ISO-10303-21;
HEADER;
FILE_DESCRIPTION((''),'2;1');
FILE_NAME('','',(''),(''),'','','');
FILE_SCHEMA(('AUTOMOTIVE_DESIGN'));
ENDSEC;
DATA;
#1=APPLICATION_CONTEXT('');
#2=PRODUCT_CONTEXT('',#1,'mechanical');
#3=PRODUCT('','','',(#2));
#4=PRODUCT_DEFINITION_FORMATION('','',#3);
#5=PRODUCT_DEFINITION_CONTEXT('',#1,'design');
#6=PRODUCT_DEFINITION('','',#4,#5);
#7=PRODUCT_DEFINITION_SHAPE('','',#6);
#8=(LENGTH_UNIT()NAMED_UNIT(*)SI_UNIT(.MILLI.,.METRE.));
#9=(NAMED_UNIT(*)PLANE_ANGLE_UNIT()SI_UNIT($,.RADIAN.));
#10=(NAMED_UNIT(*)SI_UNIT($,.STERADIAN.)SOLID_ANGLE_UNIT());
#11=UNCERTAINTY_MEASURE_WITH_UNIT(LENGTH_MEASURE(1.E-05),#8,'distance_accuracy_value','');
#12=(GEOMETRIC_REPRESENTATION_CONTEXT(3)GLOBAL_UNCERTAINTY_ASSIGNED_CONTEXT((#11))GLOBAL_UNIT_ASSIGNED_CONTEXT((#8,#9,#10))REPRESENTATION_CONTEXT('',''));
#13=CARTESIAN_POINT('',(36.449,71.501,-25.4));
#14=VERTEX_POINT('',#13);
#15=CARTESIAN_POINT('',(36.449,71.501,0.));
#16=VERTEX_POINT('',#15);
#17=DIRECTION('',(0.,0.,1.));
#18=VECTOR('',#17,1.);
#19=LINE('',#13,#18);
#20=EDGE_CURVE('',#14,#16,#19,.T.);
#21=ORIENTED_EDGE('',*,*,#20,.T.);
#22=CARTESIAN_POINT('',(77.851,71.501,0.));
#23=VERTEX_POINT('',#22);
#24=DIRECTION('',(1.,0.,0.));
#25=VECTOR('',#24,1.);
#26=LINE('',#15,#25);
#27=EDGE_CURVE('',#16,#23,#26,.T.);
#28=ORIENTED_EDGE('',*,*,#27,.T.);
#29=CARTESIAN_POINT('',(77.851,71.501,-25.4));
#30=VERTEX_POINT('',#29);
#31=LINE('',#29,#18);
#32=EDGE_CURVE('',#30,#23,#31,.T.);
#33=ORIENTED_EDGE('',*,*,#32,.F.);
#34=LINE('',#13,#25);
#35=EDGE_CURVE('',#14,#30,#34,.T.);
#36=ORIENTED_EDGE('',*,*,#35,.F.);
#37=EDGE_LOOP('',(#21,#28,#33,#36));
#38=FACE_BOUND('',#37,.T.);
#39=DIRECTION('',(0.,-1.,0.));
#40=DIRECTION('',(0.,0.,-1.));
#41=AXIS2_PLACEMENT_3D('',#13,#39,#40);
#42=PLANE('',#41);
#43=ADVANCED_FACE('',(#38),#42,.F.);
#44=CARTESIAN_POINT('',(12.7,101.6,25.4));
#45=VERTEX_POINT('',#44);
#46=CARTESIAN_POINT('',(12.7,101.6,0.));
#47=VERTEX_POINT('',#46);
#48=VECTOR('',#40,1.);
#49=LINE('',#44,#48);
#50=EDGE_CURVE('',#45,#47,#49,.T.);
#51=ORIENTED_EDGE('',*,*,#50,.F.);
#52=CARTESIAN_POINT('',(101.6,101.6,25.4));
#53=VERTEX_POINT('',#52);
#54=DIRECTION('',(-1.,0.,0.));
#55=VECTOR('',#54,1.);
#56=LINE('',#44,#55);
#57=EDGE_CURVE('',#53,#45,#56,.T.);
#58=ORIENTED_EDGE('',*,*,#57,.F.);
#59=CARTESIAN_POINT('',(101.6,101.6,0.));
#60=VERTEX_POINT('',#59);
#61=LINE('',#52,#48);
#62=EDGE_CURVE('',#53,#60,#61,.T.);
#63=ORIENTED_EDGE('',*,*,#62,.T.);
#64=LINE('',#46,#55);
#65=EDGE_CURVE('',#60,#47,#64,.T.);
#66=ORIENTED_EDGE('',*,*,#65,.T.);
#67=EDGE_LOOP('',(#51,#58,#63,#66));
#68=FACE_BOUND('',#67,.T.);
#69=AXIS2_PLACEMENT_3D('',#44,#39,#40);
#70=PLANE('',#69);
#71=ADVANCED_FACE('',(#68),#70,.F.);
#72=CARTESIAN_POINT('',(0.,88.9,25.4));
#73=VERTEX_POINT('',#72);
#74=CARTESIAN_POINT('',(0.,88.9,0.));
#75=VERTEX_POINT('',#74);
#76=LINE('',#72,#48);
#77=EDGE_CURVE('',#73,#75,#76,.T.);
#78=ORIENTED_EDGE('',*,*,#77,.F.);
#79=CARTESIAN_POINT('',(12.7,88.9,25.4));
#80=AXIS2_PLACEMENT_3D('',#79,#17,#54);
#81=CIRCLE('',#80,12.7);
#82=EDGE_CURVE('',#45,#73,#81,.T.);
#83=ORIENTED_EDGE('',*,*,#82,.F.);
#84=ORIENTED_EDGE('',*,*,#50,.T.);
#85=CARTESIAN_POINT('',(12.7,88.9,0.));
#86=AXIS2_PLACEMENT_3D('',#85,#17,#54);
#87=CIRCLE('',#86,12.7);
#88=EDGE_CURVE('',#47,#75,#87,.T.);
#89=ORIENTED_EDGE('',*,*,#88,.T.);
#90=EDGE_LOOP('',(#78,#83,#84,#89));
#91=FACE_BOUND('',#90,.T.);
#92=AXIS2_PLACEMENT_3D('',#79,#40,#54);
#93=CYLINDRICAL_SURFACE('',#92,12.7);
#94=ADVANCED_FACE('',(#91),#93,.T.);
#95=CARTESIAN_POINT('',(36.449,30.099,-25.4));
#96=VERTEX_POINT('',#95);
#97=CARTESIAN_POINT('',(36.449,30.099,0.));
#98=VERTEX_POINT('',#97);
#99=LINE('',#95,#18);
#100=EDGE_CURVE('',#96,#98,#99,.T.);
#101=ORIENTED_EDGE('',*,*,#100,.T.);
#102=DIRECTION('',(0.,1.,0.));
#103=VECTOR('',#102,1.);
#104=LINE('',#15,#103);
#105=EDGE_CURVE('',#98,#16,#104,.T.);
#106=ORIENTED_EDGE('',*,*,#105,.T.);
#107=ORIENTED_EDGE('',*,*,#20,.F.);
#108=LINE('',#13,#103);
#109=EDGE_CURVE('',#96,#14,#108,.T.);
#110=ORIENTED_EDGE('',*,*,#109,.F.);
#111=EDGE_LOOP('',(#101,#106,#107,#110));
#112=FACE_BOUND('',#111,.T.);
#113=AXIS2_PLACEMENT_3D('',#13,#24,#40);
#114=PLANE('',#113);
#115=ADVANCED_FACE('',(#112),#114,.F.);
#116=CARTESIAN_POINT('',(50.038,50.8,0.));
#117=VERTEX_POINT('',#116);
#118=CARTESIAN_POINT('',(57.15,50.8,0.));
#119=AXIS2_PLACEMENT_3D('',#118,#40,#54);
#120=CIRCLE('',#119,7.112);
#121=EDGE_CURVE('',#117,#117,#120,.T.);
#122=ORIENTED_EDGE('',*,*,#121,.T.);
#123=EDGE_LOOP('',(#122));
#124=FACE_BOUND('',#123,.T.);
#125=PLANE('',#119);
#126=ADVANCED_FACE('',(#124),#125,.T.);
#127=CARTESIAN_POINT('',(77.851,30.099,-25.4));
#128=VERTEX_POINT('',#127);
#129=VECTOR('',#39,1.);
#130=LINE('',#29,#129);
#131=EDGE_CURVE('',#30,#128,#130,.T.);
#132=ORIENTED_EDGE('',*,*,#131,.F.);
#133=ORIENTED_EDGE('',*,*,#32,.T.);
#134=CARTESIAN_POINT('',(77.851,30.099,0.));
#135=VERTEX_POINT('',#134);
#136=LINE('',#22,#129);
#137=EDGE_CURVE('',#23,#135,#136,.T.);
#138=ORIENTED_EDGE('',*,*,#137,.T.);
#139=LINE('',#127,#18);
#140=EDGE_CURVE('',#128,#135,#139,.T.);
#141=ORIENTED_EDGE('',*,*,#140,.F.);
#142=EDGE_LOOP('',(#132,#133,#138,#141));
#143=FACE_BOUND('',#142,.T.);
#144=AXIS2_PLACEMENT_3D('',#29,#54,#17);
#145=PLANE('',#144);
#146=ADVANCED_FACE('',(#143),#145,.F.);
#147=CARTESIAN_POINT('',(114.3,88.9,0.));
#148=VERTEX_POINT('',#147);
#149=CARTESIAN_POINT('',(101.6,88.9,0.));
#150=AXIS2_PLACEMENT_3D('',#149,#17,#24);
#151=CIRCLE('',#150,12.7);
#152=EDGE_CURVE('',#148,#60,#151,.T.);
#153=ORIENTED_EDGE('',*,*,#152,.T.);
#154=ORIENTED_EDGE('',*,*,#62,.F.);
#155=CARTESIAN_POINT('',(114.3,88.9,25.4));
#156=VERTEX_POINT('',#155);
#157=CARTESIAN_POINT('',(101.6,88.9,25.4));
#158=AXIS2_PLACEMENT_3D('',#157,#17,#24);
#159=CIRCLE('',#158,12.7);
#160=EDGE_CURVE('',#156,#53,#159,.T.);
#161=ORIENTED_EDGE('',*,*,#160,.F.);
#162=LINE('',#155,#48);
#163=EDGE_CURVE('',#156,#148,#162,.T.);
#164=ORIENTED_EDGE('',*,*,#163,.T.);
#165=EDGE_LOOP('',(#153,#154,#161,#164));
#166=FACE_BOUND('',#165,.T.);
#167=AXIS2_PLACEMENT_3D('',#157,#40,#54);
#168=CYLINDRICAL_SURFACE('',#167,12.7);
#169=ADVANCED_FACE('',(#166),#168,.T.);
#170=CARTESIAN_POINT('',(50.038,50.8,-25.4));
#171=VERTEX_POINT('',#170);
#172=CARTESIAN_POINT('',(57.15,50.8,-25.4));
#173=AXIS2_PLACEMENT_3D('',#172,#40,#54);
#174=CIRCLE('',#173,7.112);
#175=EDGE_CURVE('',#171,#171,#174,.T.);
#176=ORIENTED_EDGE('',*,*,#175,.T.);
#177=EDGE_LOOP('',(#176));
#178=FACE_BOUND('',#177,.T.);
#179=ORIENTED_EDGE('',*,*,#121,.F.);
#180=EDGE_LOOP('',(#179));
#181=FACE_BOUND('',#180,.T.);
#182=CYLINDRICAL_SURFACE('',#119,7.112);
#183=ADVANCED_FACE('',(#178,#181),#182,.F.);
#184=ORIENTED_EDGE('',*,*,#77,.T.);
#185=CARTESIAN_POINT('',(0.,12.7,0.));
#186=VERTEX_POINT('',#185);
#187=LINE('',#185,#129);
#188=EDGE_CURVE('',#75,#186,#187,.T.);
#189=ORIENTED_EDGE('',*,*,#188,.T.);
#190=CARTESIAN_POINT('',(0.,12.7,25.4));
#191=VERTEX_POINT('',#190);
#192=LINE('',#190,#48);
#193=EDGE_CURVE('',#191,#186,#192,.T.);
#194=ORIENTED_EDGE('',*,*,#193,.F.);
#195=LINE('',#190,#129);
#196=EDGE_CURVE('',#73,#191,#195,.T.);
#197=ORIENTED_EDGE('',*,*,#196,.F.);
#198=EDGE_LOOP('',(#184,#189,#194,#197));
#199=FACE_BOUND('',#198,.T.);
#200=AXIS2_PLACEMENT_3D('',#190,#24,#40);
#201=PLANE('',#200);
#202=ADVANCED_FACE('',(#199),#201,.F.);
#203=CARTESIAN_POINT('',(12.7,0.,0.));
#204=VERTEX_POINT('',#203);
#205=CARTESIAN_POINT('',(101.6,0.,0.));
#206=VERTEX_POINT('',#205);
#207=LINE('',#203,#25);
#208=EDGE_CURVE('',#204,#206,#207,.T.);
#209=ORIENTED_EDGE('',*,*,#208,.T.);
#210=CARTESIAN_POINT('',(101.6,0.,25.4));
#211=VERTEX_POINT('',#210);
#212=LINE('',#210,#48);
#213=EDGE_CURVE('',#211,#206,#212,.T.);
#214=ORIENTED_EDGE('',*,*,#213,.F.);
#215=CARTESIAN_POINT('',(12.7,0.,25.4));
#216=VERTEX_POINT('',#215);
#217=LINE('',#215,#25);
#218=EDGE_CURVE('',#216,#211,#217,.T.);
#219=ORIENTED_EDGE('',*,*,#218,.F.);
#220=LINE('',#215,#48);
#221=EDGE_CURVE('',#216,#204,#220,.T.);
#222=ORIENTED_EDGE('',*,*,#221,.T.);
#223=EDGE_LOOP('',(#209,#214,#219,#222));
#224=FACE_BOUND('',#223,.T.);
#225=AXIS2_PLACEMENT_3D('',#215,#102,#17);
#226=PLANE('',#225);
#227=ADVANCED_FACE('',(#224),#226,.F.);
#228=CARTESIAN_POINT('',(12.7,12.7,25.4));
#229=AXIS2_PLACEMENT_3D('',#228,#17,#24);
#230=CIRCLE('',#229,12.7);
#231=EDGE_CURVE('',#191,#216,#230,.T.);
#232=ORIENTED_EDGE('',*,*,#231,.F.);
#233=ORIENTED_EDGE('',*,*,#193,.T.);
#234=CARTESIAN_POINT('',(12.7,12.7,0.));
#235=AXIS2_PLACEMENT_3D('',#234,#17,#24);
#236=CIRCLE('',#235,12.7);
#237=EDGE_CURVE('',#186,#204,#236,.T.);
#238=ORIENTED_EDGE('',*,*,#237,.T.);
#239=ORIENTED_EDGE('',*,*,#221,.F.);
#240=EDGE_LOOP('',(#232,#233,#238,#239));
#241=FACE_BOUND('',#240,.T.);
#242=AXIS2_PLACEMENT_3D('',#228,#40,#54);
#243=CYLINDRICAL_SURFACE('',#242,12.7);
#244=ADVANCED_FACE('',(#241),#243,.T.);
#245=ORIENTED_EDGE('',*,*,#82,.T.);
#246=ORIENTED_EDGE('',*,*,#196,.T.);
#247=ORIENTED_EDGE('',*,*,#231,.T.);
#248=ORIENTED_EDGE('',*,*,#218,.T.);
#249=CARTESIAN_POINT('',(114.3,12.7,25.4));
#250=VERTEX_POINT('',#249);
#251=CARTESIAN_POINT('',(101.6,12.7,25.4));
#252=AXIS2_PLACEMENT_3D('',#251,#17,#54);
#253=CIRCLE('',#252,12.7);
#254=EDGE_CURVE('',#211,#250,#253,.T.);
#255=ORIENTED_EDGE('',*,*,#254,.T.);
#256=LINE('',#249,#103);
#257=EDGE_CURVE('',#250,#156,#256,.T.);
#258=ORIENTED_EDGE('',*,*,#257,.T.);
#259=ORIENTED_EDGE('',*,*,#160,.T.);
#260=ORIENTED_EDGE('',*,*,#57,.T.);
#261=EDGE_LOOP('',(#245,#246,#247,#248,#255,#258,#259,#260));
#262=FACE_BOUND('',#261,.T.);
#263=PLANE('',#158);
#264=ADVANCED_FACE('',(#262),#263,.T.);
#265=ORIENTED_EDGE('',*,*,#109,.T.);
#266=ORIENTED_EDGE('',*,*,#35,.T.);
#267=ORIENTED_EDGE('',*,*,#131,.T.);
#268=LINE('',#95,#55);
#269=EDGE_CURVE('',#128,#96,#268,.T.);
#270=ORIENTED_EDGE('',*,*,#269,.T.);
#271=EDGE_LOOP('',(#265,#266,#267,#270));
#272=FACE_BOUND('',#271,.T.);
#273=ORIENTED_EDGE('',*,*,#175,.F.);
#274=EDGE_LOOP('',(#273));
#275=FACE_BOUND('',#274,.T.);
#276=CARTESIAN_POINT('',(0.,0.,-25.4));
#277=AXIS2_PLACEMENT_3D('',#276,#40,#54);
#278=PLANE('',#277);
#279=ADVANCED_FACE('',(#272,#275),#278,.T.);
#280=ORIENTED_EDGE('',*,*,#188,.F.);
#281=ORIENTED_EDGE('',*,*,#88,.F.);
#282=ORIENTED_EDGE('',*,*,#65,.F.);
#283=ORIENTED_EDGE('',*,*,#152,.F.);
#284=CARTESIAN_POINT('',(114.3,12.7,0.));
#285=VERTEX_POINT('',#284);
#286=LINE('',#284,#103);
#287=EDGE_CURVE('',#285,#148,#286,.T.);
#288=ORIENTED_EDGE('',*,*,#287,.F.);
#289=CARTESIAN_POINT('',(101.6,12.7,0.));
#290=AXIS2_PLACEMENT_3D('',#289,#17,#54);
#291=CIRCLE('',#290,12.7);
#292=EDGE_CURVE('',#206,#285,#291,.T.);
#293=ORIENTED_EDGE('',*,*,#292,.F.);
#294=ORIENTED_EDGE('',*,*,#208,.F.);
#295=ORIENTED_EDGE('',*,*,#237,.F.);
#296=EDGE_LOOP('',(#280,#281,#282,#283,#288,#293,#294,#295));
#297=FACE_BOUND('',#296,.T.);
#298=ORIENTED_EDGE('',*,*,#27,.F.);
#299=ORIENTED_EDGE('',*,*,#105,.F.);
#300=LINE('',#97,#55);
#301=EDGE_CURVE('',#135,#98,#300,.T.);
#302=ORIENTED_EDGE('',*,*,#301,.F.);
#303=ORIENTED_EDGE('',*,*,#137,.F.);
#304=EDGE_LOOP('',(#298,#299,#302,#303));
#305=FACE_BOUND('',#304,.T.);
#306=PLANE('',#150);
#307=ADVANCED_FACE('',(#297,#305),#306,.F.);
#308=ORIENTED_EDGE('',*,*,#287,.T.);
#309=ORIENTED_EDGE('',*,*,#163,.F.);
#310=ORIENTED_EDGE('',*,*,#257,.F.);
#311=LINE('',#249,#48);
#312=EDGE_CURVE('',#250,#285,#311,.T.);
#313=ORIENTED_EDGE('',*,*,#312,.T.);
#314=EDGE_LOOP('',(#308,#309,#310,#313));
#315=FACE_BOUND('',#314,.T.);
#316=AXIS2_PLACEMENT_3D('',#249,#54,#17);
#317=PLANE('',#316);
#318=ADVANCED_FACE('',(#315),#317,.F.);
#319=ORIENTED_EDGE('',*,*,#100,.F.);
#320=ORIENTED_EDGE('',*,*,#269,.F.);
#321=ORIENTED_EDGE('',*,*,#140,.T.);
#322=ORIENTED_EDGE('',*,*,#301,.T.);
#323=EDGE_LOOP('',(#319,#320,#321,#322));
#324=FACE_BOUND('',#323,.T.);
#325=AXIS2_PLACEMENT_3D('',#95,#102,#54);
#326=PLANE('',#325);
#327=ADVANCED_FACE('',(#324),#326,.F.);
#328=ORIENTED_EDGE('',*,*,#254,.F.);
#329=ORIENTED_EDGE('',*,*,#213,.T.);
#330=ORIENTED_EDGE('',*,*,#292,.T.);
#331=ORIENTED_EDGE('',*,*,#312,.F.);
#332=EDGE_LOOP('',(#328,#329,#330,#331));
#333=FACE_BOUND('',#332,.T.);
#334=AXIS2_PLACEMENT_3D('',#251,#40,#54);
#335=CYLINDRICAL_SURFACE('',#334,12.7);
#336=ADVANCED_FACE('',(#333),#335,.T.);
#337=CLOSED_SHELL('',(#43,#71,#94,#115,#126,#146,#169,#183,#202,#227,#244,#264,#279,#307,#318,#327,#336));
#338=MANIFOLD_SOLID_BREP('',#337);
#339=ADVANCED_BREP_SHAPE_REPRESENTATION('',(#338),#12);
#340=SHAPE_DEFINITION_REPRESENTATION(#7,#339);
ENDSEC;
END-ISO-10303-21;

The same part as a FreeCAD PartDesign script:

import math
import FreeCAD as App
import Part
import Sketcher
Q = App.Units.Quantity


def add_polygon(sketch, points):
    """Adds a closed chain of lines whose ends are joined by coincident constraints."""
    first, n = sketch.GeometryCount, len(points)
    for a, b in zip(points, points[1:] + points[:1]):
        sketch.addGeometry(Part.LineSegment(App.Vector(*a, 0), App.Vector(*b, 0)), False)
    for i in range(n):
        sketch.addConstraint(Sketcher.Constraint("Coincident", first + i, 2, first + (i + 1) % n, 1))

doc = App.newDocument("Part")
body = doc.addObject("PartDesign::Body", "Body")

# Sketch on XY plane
sketch1 = doc.addObject("Sketcher::SketchObject", "Sketch")
body.addObject(sketch1)
sketch1.AttachmentSupport = (doc.XY_Plane, [""])
sketch1.MapMode = "FlatFace"
sketch1.addGeometry([
    Part.LineSegment(App.Vector(13, 0, 0), App.Vector(102, 0, 0)),  # 0
    Part.ArcOfCircle(Part.Circle(App.Vector(102, 13, 0), App.Vector(0, 0, 1), 13), math.radians(-90), math.radians(0)),  # 1
    Part.LineSegment(App.Vector(114, 13, 0), App.Vector(114, 89, 0)),  # 2
    Part.ArcOfCircle(Part.Circle(App.Vector(102, 89, 0), App.Vector(0, 0, 1), 13), math.radians(0), math.radians(90)),  # 3
    Part.LineSegment(App.Vector(102, 102, 0), App.Vector(13, 102, 0)),  # 4
    Part.ArcOfCircle(Part.Circle(App.Vector(13, 89, 0), App.Vector(0, 0, 1), 13), math.radians(90), math.radians(180)),  # 5
    Part.LineSegment(App.Vector(0, 89, 0), App.Vector(0, 13, 0)),  # 6
    Part.ArcOfCircle(Part.Circle(App.Vector(13, 13, 0), App.Vector(0, 0, 1), 13), math.radians(180), math.radians(270)),  # 7
], False)
sketch1.addConstraint([
    Sketcher.Constraint("Tangent", 0, 2, 1, 1),
    Sketcher.Constraint("Tangent", 1, 2, 2, 1),
    Sketcher.Constraint("Tangent", 2, 2, 3, 1),
    Sketcher.Constraint("Tangent", 3, 2, 4, 1),
    Sketcher.Constraint("Tangent", 4, 2, 5, 1),
    Sketcher.Constraint("Tangent", 5, 2, 6, 1),
    Sketcher.Constraint("Tangent", 6, 2, 7, 1),
    Sketcher.Constraint("Tangent", 7, 2, 0, 1),
    Sketcher.Constraint("Horizontal", 0),
    Sketcher.Constraint("Vertical", 2),
    Sketcher.Constraint("Horizontal", 4),
    Sketcher.Constraint("Vertical", 6),
    Sketcher.Constraint("Equal", 1, 3),
    Sketcher.Constraint("Equal", 3, 5),
    Sketcher.Constraint("Equal", 5, 7),
    Sketcher.Constraint("PointOnObject", 0, 2, -1),
    Sketcher.Constraint("PointOnObject", 5, 2, -2),
    Sketcher.Constraint("Radius", 1, Q("0.5 in")),
    Sketcher.Constraint("DistanceY", 2, 1, 2, 2, Q("3 in")),
    Sketcher.Constraint("DistanceX", 0, 1, 0, 2, Q("3.5 in")),
])
pad1 = doc.addObject("PartDesign::Pad", "Pad")
body.addObject(pad1)
pad1.Profile = sketch1
pad1.Length = Q("1 in")

# Sketch on XY plane
sketch2 = doc.addObject("Sketcher::SketchObject", "Sketch001")
body.addObject(sketch2)
sketch2.AttachmentSupport = (doc.XY_Plane, [""])
sketch2.MapMode = "FlatFace"
add_polygon(sketch2, [(78, 72), (78, 30), (36, 30), (36, 72)])  # lines 0-3
sketch2.addConstraint([
    Sketcher.Constraint("Vertical", 0),
    Sketcher.Constraint("Horizontal", 1),
    Sketcher.Constraint("Vertical", 2),
    Sketcher.Constraint("Horizontal", 3),
    Sketcher.Constraint("Equal", 3, 0),
    Sketcher.Constraint("DistanceX", 1, 2, 1, 1, Q("1.63 in")),
    Sketcher.Constraint("DistanceX", -1, 1, 0, 2, Q("3.065 in")),
    Sketcher.Constraint("DistanceY", -1, 1, 0, 2, Q("1.185 in")),
])
pad2 = doc.addObject("PartDesign::Pad", "Pad001")
body.addObject(pad2)
pad2.Profile = sketch2
pad2.Length = Q("1 in")
pad2.Reversed = True

# Sketch on XY plane
sketch3 = doc.addObject("Sketcher::SketchObject", "Sketch002")
body.addObject(sketch3)
sketch3.AttachmentSupport = (doc.XY_Plane, [""])
sketch3.MapMode = "FlatFace"
sketch3.AttachmentOffset = App.Placement(App.Vector(0, 0, -1 * 25.4), App.Rotation())
sketch3.addGeometry(Part.Circle(App.Vector(57, 51, 0), App.Vector(0, 0, 1), 7), False)
sketch3.addConstraint([
    Sketcher.Constraint("Diameter", 0, Q("0.56 in")),
    Sketcher.Constraint("DistanceY", -1, 1, 0, 3, Q("2 in")),
    Sketcher.Constraint("DistanceX", -1, 1, 0, 3, Q("2.25 in")),
])
pocket1 = doc.addObject("PartDesign::Pocket", "Pocket")
body.addObject(pocket1)
pocket1.Profile = sketch3
pocket1.Length = Q("1 in")
pocket1.Reversed = True

doc.recompute()
